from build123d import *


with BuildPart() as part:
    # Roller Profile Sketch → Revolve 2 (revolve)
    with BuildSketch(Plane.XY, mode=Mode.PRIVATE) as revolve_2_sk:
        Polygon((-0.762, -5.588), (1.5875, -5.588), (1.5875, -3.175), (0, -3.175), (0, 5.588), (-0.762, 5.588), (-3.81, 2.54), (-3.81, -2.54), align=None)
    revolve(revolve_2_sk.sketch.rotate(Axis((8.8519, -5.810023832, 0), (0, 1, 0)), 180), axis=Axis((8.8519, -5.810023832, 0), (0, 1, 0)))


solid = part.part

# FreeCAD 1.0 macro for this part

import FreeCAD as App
import Part
import Sketcher
from FreeCAD import Vector
Q = App.Units.Quantity

doc = App.newDocument("Part")
body = doc.addObject("PartDesign::Body", "Body")

# Sketch on XY plane
sketch1 = body.newObject("Sketcher::SketchObject", "Sketch")
sketch1.AttachmentSupport = (doc.getObject("XY_Plane"), [""])
sketch1.MapMode = "FlatFace"
sketch1.addGeometry(Part.LineSegment(Vector(-0.8, -5.6, 0), Vector(1.6, -5.6, 0)), False)
sketch1.addGeometry(Part.LineSegment(Vector(1.6, -5.6, 0), Vector(1.6, -3.2, 0)), False)
sketch1.addGeometry(Part.LineSegment(Vector(1.6, -3.2, 0), Vector(0, -3.2, 0)), False)
sketch1.addGeometry(Part.LineSegment(Vector(0, -3.2, 0), Vector(0, 5.6, 0)), False)
sketch1.addGeometry(Part.LineSegment(Vector(0, 5.6, 0), Vector(-0.8, 5.6, 0)), False)
sketch1.addGeometry(Part.LineSegment(Vector(-0.8, 5.6, 0), Vector(-3.8, 2.5, 0)), False)
sketch1.addGeometry(Part.LineSegment(Vector(-3.8, 2.5, 0), Vector(-3.8, -2.5, 0)), False)
sketch1.addGeometry(Part.LineSegment(Vector(-3.8, -2.5, 0), Vector(-0.8, -5.6, 0)), False)
sketch1.addGeometry(Part.LineSegment(Vector(8.9, -5.6, 0), Vector(8.9, 5.6, 0)), True)  # axis
sketch1.addConstraint(Sketcher.Constraint("Coincident", 0, 2, 1, 1))
sketch1.addConstraint(Sketcher.Constraint("Coincident", 1, 2, 2, 1))
sketch1.addConstraint(Sketcher.Constraint("Coincident", 2, 2, 3, 1))
sketch1.addConstraint(Sketcher.Constraint("Coincident", 3, 2, 4, 1))
sketch1.addConstraint(Sketcher.Constraint("Coincident", 4, 2, 5, 1))
sketch1.addConstraint(Sketcher.Constraint("Coincident", 5, 2, 6, 1))
sketch1.addConstraint(Sketcher.Constraint("Coincident", 6, 2, 7, 1))
sketch1.addConstraint(Sketcher.Constraint("Coincident", 7, 2, 0, 1))
sketch1.addConstraint(Sketcher.Constraint("Horizontal", 0))
sketch1.addConstraint(Sketcher.Constraint("Vertical", 1))
sketch1.addConstraint(Sketcher.Constraint("Horizontal", 2))
sketch1.addConstraint(Sketcher.Constraint("Vertical", 3))
sketch1.addConstraint(Sketcher.Constraint("Horizontal", 4))
sketch1.addConstraint(Sketcher.Constraint("Vertical", 6))
sketch1.addConstraint(Sketcher.Constraint("Vertical", 8))
sketch1.addConstraint(Sketcher.Constraint("Symmetric", 4, 2, 7, 2, -1))
sketch1.addConstraint(Sketcher.Constraint("PointOnObject", 2, 2, -2))
sketch1.addConstraint(Sketcher.Constraint("Perpendicular", 5, 7))
sketch1.addConstraint(Sketcher.Constraint("Horizontal", 7, 2, 8, 1))
sketch1.addConstraint(Sketcher.Constraint("Horizontal", 4, 2, 8, 2))
sketch1.addConstraint(Sketcher.Constraint("Equal", 5, 7))
sketch1.addConstraint(Sketcher.Constraint("DistanceY", 6, 2, 6, 1, Q("0.2 in")))
sketch1.addConstraint(Sketcher.Constraint("DistanceX", 4, 2, 4, 1, Q("0.03 in")))
sketch1.addConstraint(Sketcher.Constraint("DistanceY", 8, 1, 8, 2, Q("0.44 in")))
sketch1.addConstraint(Sketcher.Constraint("DistanceX", 2, 2, 2, 1, Q("0.0625 in")))
sketch1.addConstraint(Sketcher.Constraint("DistanceY", 1, 1, 1, 2, Q("0.095 in")))
sketch1.addConstraint(Sketcher.Constraint("DistanceX", 0, 2, 8, 1, Q("0.286 in")))
revolution = body.newObject("PartDesign::Revolution", "Revolution")
revolution.Profile = sketch1
revolution.ReferenceAxis = (sketch1, ["Axis0"])
revolution.Angle = 360

doc.recompute()
